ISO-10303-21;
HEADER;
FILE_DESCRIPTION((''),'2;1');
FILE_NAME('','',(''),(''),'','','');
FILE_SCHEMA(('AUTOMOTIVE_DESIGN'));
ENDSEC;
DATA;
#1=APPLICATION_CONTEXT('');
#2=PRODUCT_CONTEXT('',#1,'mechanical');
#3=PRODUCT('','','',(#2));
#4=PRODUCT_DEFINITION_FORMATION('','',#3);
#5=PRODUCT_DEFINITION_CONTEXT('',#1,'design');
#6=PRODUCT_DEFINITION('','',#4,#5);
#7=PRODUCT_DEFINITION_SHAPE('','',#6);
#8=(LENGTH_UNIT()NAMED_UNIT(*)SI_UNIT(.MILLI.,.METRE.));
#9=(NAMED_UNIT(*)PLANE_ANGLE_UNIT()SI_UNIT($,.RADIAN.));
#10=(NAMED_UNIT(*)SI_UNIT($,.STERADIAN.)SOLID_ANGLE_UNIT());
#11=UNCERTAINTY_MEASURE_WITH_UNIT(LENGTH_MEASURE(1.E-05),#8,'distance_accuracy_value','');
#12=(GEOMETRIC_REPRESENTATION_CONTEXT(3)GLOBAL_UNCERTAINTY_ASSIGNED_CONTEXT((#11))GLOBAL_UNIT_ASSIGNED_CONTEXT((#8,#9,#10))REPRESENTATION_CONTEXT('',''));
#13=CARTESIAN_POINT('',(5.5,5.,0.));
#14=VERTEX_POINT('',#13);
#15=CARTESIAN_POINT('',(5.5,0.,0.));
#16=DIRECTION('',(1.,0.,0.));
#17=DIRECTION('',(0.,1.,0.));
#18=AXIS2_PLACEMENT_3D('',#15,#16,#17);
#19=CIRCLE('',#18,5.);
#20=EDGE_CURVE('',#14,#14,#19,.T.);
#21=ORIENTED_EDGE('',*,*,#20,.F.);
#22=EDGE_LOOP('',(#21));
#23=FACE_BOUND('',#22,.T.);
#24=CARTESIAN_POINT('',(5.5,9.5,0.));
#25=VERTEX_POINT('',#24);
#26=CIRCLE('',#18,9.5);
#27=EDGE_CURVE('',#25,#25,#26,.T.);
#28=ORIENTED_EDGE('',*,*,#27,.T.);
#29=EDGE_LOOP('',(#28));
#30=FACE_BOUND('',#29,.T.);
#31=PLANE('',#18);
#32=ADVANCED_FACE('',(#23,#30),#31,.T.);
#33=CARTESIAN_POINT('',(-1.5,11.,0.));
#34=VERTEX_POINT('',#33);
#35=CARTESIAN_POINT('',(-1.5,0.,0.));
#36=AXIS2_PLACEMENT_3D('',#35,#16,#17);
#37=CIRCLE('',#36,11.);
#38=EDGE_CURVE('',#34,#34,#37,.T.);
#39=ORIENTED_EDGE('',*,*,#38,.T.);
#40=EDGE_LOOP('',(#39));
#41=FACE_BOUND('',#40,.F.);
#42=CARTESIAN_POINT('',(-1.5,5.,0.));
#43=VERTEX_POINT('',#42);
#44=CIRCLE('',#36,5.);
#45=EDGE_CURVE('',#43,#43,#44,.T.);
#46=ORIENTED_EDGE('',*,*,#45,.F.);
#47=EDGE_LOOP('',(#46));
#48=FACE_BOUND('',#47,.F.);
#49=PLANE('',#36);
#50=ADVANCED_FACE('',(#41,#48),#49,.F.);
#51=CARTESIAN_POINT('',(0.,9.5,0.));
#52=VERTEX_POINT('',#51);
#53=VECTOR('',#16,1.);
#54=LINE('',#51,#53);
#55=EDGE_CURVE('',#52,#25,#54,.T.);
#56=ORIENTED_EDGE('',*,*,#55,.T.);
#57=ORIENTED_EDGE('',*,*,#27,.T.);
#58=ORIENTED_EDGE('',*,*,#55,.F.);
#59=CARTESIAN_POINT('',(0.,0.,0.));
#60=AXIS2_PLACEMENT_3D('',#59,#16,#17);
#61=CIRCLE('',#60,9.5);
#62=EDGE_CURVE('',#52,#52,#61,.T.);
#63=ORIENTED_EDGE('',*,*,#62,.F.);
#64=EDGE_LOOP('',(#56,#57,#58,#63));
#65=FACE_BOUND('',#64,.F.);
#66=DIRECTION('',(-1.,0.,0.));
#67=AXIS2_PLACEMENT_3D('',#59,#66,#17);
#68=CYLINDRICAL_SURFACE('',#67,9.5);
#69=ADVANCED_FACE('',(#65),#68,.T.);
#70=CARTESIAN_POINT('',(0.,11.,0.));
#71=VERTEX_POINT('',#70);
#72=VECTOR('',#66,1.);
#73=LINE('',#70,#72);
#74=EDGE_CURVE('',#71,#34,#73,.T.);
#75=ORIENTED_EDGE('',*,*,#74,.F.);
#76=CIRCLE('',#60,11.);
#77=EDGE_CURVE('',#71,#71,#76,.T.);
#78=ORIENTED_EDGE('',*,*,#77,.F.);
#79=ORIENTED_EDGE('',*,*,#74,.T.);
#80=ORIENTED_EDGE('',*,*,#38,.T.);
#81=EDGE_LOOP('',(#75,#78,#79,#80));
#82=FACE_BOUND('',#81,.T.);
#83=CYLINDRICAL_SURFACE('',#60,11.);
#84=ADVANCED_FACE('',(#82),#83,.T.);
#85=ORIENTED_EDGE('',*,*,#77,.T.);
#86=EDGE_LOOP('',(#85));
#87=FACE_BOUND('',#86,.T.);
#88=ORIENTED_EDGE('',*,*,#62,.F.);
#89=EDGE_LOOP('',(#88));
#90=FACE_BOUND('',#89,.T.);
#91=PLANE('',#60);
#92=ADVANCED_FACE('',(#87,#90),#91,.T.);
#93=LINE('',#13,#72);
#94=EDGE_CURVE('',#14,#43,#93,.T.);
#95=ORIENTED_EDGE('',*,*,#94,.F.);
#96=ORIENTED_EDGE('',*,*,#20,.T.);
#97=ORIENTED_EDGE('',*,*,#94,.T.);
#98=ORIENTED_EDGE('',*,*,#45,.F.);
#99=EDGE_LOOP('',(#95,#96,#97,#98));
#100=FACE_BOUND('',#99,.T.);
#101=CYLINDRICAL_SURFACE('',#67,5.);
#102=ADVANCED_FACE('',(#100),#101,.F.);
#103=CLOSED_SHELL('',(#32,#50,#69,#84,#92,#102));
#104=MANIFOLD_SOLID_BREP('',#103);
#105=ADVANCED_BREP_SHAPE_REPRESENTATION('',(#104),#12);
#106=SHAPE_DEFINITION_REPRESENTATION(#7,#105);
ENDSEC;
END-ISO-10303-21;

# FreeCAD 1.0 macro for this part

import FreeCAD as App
import Part
import Sketcher

V = App.Vector
Q = App.Units.Quantity

doc = App.newDocument("Part")
body = doc.addObject("PartDesign::Body", "Body")

# Sketch on YZ plane
sketch1 = body.newObject("Sketcher::SketchObject", "Sketch")
sketch1.AttachmentSupport = (doc.getObject("YZ_Plane"), [""])
sketch1.MapMode = "FlatFace"
sketch1.addGeometry([
    Part.Circle(V(0, 0, 0), V(0, 0, 1), 11),
    Part.Circle(V(0, 0, 0), V(0, 0, 1), 5),
], False)
sketch1.addConstraint([
    Sketcher.Constraint("Coincident", 0, 3, -1, 1),
    Sketcher.Constraint("Coincident", 1, 3, -1, 1),
    Sketcher.Constraint("Diameter", 0, Q("22 mm")),
    Sketcher.Constraint("Diameter", 1, Q("10 mm")),
])
pad1 = body.newObject("PartDesign::Pad", "Pad")
pad1.Profile = sketch1
pad1.Length = 1.5
pad1.Reversed = True

# Sketch on YZ plane
sketch2 = body.newObject("Sketcher::SketchObject", "Sketch001")
sketch2.AttachmentSupport = (doc.getObject("YZ_Plane"), [""])
sketch2.MapMode = "FlatFace"
sketch2.addGeometry([
    Part.Circle(V(0, 0, 0), V(0, 0, 1), 9.5),
    Part.Circle(V(0, 0, 0), V(0, 0, 1), 5),
], False)
sketch2.addConstraint([
    Sketcher.Constraint("Coincident", 0, 3, -1, 1),
    Sketcher.Constraint("Coincident", 1, 3, -1, 1),
    Sketcher.Constraint("Diameter", 0, Q("19 mm")),
    Sketcher.Constraint("Diameter", 1, Q("10 mm")),
])
pad2 = body.newObject("PartDesign::Pad", "Pad001")
pad2.Profile = sketch2
pad2.Length = 5.5

doc.recompute()
